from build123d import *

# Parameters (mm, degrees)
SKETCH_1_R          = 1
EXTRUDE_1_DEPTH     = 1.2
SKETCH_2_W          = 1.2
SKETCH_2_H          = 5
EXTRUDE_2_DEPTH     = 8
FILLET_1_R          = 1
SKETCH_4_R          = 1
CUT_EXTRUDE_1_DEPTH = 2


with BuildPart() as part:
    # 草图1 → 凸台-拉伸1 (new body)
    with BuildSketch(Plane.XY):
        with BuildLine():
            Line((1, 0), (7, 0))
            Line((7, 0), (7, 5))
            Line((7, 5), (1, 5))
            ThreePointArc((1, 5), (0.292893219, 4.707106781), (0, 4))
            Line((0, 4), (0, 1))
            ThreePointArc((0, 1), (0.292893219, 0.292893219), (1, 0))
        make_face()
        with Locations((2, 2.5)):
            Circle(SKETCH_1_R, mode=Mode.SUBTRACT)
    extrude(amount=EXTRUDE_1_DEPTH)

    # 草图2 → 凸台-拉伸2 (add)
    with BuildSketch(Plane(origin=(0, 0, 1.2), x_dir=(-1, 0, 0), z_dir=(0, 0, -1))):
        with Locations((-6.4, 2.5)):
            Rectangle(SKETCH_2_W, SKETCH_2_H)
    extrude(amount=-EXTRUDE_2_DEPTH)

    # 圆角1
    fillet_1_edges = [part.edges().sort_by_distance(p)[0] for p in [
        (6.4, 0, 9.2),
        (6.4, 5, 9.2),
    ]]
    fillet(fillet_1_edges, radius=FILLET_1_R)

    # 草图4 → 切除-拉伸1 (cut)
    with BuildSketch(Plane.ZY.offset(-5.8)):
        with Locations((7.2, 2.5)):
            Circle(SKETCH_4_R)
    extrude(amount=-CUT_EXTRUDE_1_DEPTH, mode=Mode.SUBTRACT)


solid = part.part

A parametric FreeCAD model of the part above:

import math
import FreeCAD as App
import Part
import Sketcher

V = App.Vector
Q = App.Units.Quantity


def edges_at(feature, points):
    """Names of the edges that pass closest to the given points."""
    edges = feature.Shape.Edges
    near = lambda p: min(range(len(edges)), key=lambda i: edges[i].distToShape(Part.Vertex(*p))[0])
    return sorted({f"Edge{near(p) + 1}" for p in points})


def add_polygon(sketch, points):
    """Adds a closed chain of lines whose ends are joined by coincident constraints."""
    first, n = sketch.GeometryCount, len(points)
    for a, b in zip(points, points[1:] + points[:1]):
        sketch.addGeometry(Part.LineSegment(App.Vector(*a, 0), App.Vector(*b, 0)), False)
    for i in range(n):
        sketch.addConstraint(Sketcher.Constraint("Coincident", first + i, 2, first + (i + 1) % n, 1))

doc = App.newDocument("Part")
body = doc.addObject("PartDesign::Body", "Body")

sketch1 = body.newObject("Sketcher::SketchObject", "Sketch")
sketch1.AttachmentSupport = (doc.getObject("XY_Plane"), [""])
sketch1.MapMode = "FlatFace"
sketch1.addGeometry([
    Part.LineSegment(V(1, 0, 0), V(7, 0, 0)),
    Part.LineSegment(V(7, 0, 0), V(7, 5, 0)),
    Part.LineSegment(V(7, 5, 0), V(1, 5, 0)),
    Part.ArcOfCircle(Part.Circle(V(1, 4, 0), V(0, 0, 1), 1), math.radians(90), math.radians(180)),
    Part.LineSegment(V(0, 4, 0), V(0, 1, 0)),
    Part.ArcOfCircle(Part.Circle(V(1, 1, 0), V(0, 0, 1), 1), math.radians(-180), math.radians(-90)),
    Part.Circle(V(2, 2.5, 0), V(0, 0, 1), 1),
], False)
sketch1.addConstraint([
    Sketcher.Constraint("Coincident", 0, 2, 1, 1),
    Sketcher.Constraint("Coincident", 1, 2, 2, 1),
    Sketcher.Constraint("Tangent", 2, 2, 3, 1),
    Sketcher.Constraint("Tangent", 3, 2, 4, 1),
    Sketcher.Constraint("Tangent", 4, 2, 5, 1),
    Sketcher.Constraint("Tangent", 5, 2, 0, 1),
    Sketcher.Constraint("Horizontal", 0),
    Sketcher.Constraint("Vertical", 1),
    Sketcher.Constraint("Horizontal", 2),
    Sketcher.Constraint("Vertical", 4),
    Sketcher.Constraint("Equal", 3, 5),
    Sketcher.Constraint("Equal", 5, 6),
    Sketcher.Constraint("PointOnObject", 0, 2, -1),
    Sketcher.Constraint("PointOnObject", 3, 2, -2),
    Sketcher.Constraint("Diameter", 6, Q("2 mm")),
    Sketcher.Constraint("DistanceX", 0, 1, 0, 2, Q("6 mm")),
    Sketcher.Constraint("DistanceY", 1, 1, 1, 2, Q("5 mm")),
    Sketcher.Constraint("DistanceX", -1, 1, 6, 3, Q("2 mm")),
    Sketcher.Constraint("DistanceY", -1, 1, 6, 3, Q("2.5 mm")),
])
pad1 = body.newObject("PartDesign::Pad", "Pad")
pad1.Profile = sketch1
pad1.Length = 1.2

sketch2 = body.newObject("Sketcher::SketchObject", "Sketch001")
sketch2.AttachmentSupport = (doc.getObject("XY_Plane"), [""])
sketch2.MapMode = "FlatFace"
sketch2.AttachmentOffset = App.Placement(V(0, 0, 1.2), App.Rotation())
add_polygon(sketch2, [(7, 5), (7, 0), (5.8, 0), (5.8, 5)])
sketch2.addConstraint([
    Sketcher.Constraint("Vertical", 0),
    Sketcher.Constraint("Horizontal", 1),
    Sketcher.Constraint("Vertical", 2),
    Sketcher.Constraint("Horizontal", 3),
    Sketcher.Constraint("PointOnObject", 0, 2, -1),
    Sketcher.Constraint("DistanceY", 0, 2, 0, 1, Q("5 mm")),
    Sketcher.Constraint("DistanceX", 1, 2, 1, 1, Q("1.2 mm")),
    Sketcher.Constraint("DistanceX", -1, 1, 0, 2, Q("7 mm")),
])
pad2 = body.newObject("PartDesign::Pad", "Pad001")
pad2.Profile = sketch2
pad2.Length = 8
doc.recompute()

fillet = body.newObject("PartDesign::Fillet", "Fillet")
fillet.Base = (pad2, edges_at(pad2, [(6.4, 0, 9.2), (6.4, 5, 9.2)]))
fillet.Radius = 1

sketch3 = body.newObject("Sketcher::SketchObject", "Sketch002")
sketch3.AttachmentSupport = (doc.getObject("YZ_Plane"), [""])
sketch3.MapMode = "FlatFace"
sketch3.AttachmentOffset = App.Placement(V(0, 0, 5.8), App.Rotation())
sketch3.addGeometry(Part.Circle(V(2.5, 7.2, 0), V(0, 0, 1), 1), False)
sketch3.addConstraint([
    Sketcher.Constraint("Diameter", 0, Q("2 mm")),
    Sketcher.Constraint("DistanceX", -1, 1, 0, 3, Q("2.5 mm")),
    Sketcher.Constraint("DistanceY", -1, 1, 0, 3, Q("7.2 mm")),
])
pocket1 = body.newObject("PartDesign::Pocket", "Pocket")
pocket1.Profile = sketch3
pocket1.Length = 2
pocket1.Reversed = True

doc.recompute()
